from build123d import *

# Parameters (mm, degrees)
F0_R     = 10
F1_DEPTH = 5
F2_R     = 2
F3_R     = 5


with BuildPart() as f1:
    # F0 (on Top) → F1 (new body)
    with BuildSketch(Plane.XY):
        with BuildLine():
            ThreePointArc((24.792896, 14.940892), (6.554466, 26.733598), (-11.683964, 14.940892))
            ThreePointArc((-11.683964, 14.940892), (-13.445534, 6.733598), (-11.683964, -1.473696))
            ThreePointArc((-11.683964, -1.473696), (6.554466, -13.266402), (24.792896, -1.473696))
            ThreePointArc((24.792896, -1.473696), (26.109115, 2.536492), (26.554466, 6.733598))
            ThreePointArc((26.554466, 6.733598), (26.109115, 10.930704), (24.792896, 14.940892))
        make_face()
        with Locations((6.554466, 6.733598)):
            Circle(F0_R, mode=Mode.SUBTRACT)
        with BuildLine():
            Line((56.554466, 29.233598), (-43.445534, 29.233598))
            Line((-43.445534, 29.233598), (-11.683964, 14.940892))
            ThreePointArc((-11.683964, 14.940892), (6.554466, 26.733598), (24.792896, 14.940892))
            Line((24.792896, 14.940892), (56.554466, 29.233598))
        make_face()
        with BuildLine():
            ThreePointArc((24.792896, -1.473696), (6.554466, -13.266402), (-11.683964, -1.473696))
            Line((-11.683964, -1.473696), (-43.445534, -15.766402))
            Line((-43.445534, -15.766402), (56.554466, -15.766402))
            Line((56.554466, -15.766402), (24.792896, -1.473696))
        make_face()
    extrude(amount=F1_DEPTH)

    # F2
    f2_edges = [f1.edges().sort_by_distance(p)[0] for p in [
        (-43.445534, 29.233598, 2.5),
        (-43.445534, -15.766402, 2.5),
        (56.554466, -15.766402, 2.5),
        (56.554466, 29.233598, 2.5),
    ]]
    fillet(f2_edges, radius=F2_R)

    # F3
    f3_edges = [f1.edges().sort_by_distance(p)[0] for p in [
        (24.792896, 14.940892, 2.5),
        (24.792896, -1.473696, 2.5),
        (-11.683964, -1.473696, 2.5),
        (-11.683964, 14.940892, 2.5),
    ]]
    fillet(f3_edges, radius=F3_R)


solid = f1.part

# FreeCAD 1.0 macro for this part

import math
import FreeCAD as App
import Part
import Sketcher
from FreeCAD import Vector


def edges_at(feature, points):
    """Names of the edges that pass closest to the given points."""
    edges = feature.Shape.Edges
    near = lambda p: min(range(len(edges)), key=lambda i: edges[i].distToShape(Part.Vertex(*p))[0])
    return sorted({f"Edge{near(p) + 1}" for p in points})

doc = App.newDocument("Part")
body = doc.addObject("PartDesign::Body", "Body")

sketch1 = doc.addObject("Sketcher::SketchObject", "Sketch")
body.addObject(sketch1)
sketch1.AttachmentSupport = (doc.XY_Plane, [""])
sketch1.MapMode = "FlatFace"
sketch1.addGeometry([
    Part.ArcOfCircle(Part.Circle(Vector(7, 7, 0), Vector(0, 0, 1), 20), math.radians(0), math.radians(24)),
    Part.LineSegment(Vector(25, 15, 0), Vector(57, 29, 0)),
    Part.LineSegment(Vector(57, 29, 0), Vector(-43, 29, 0)),
    Part.LineSegment(Vector(-43, 29, 0), Vector(-12, 15, 0)),
    Part.ArcOfCircle(Part.Circle(Vector(7, 7, 0), Vector(0, 0, 1), 20), math.radians(156), math.radians(204)),
    Part.LineSegment(Vector(-12, -1, 0), Vector(-43, -16, 0)),
    Part.LineSegment(Vector(-43, -16, 0), Vector(57, -16, 0)),
    Part.LineSegment(Vector(57, -16, 0), Vector(25, -1, 0)),
    Part.ArcOfCircle(Part.Circle(Vector(7, 7, 0), Vector(0, 0, 1), 20), math.radians(-24), math.radians(0)),
    Part.Circle(Vector(7, 7, 0), Vector(0, 0, 1), 10),
], False)
sketch1.addConstraint([
    Sketcher.Constraint("Coincident", 0, 2, 1, 1),
    Sketcher.Constraint("Coincident", 1, 2, 2, 1),
    Sketcher.Constraint("Coincident", 2, 2, 3, 1),
    Sketcher.Constraint("Coincident", 3, 2, 4, 1),
    Sketcher.Constraint("Coincident", 4, 2, 5, 1),
    Sketcher.Constraint("Coincident", 5, 2, 6, 1),
    Sketcher.Constraint("Coincident", 6, 2, 7, 1),
    Sketcher.Constraint("Coincident", 7, 2, 8, 1),
    Sketcher.Constraint("Tangent", 8, 2, 0, 1),
    Sketcher.Constraint("Horizontal", 2),
    Sketcher.Constraint("Horizontal", 6),
    Sketcher.Constraint("Coincident", 4, 3, 0, 3),
    Sketcher.Constraint("Coincident", 9, 3, 0, 3),
    Sketcher.Constraint("Equal", 0, 8),
    Sketcher.Constraint("Parallel", 1, 5),
    Sketcher.Constraint("Parallel", 3, 7),
    Sketcher.Constraint("Horizontal", 0, 2, 3, 2),
    Sketcher.Constraint("Horizontal", 4, 2, 7, 2),
    Sketcher.Constraint("Horizontal", 9, 3, 8, 2),
    Sketcher.Constraint("Vertical", 3, 2, 4, 2),
    Sketcher.Constraint("Vertical", 2, 2, 5, 2),
    Sketcher.Constraint("Vertical", 1, 2, 6, 2),
    Sketcher.Constraint("Diameter", 9, 20.0),
    Sketcher.Constraint("Radius", 4, 20.000001),
    Sketcher.Constraint("DistanceX", 2, 2, 2, 1, 100.0),
    Sketcher.Constraint("DistanceX", 4, 3, 1, 2, 49.999999),
    Sketcher.Constraint("DistanceY", 5, 2, 2, 2, 45.0),
    Sketcher.Constraint("DistanceY", -1, 1, 8, 3, 6.733599),
    Sketcher.Constraint("DistanceX", -1, 1, 0, 3, 6.55446),
    Sketcher.Constraint("DistanceY", -1, 1, 0, 2, 14.940892),
])
pad1 = doc.addObject("PartDesign::Pad", "Pad")
body.addObject(pad1)
pad1.Profile = sketch1
pad1.Length = 5
doc.recompute()

fillet = doc.addObject("PartDesign::Fillet", "Fillet")
body.addObject(fillet)
fillet.Base = (pad1, edges_at(pad1, [
    (-43.446, 29.234, 2.5),
    (-43.446, -15.766, 2.5),
    (56.554, -15.766, 2.5),
    (56.554, 29.234, 2.5),
]))
fillet.Radius = 2
doc.recompute()

fillet2 = doc.addObject("PartDesign::Fillet", "Fillet001")
body.addObject(fillet2)
fillet2.Base = (fillet, edges_at(fillet, [
    (24.793, 14.941, 2.5),
    (24.793, -1.474, 2.5),
    (-11.684, -1.474, 2.5),
    (-11.684, 14.941, 2.5),
]))
fillet2.Radius = 5

doc.recompute()
